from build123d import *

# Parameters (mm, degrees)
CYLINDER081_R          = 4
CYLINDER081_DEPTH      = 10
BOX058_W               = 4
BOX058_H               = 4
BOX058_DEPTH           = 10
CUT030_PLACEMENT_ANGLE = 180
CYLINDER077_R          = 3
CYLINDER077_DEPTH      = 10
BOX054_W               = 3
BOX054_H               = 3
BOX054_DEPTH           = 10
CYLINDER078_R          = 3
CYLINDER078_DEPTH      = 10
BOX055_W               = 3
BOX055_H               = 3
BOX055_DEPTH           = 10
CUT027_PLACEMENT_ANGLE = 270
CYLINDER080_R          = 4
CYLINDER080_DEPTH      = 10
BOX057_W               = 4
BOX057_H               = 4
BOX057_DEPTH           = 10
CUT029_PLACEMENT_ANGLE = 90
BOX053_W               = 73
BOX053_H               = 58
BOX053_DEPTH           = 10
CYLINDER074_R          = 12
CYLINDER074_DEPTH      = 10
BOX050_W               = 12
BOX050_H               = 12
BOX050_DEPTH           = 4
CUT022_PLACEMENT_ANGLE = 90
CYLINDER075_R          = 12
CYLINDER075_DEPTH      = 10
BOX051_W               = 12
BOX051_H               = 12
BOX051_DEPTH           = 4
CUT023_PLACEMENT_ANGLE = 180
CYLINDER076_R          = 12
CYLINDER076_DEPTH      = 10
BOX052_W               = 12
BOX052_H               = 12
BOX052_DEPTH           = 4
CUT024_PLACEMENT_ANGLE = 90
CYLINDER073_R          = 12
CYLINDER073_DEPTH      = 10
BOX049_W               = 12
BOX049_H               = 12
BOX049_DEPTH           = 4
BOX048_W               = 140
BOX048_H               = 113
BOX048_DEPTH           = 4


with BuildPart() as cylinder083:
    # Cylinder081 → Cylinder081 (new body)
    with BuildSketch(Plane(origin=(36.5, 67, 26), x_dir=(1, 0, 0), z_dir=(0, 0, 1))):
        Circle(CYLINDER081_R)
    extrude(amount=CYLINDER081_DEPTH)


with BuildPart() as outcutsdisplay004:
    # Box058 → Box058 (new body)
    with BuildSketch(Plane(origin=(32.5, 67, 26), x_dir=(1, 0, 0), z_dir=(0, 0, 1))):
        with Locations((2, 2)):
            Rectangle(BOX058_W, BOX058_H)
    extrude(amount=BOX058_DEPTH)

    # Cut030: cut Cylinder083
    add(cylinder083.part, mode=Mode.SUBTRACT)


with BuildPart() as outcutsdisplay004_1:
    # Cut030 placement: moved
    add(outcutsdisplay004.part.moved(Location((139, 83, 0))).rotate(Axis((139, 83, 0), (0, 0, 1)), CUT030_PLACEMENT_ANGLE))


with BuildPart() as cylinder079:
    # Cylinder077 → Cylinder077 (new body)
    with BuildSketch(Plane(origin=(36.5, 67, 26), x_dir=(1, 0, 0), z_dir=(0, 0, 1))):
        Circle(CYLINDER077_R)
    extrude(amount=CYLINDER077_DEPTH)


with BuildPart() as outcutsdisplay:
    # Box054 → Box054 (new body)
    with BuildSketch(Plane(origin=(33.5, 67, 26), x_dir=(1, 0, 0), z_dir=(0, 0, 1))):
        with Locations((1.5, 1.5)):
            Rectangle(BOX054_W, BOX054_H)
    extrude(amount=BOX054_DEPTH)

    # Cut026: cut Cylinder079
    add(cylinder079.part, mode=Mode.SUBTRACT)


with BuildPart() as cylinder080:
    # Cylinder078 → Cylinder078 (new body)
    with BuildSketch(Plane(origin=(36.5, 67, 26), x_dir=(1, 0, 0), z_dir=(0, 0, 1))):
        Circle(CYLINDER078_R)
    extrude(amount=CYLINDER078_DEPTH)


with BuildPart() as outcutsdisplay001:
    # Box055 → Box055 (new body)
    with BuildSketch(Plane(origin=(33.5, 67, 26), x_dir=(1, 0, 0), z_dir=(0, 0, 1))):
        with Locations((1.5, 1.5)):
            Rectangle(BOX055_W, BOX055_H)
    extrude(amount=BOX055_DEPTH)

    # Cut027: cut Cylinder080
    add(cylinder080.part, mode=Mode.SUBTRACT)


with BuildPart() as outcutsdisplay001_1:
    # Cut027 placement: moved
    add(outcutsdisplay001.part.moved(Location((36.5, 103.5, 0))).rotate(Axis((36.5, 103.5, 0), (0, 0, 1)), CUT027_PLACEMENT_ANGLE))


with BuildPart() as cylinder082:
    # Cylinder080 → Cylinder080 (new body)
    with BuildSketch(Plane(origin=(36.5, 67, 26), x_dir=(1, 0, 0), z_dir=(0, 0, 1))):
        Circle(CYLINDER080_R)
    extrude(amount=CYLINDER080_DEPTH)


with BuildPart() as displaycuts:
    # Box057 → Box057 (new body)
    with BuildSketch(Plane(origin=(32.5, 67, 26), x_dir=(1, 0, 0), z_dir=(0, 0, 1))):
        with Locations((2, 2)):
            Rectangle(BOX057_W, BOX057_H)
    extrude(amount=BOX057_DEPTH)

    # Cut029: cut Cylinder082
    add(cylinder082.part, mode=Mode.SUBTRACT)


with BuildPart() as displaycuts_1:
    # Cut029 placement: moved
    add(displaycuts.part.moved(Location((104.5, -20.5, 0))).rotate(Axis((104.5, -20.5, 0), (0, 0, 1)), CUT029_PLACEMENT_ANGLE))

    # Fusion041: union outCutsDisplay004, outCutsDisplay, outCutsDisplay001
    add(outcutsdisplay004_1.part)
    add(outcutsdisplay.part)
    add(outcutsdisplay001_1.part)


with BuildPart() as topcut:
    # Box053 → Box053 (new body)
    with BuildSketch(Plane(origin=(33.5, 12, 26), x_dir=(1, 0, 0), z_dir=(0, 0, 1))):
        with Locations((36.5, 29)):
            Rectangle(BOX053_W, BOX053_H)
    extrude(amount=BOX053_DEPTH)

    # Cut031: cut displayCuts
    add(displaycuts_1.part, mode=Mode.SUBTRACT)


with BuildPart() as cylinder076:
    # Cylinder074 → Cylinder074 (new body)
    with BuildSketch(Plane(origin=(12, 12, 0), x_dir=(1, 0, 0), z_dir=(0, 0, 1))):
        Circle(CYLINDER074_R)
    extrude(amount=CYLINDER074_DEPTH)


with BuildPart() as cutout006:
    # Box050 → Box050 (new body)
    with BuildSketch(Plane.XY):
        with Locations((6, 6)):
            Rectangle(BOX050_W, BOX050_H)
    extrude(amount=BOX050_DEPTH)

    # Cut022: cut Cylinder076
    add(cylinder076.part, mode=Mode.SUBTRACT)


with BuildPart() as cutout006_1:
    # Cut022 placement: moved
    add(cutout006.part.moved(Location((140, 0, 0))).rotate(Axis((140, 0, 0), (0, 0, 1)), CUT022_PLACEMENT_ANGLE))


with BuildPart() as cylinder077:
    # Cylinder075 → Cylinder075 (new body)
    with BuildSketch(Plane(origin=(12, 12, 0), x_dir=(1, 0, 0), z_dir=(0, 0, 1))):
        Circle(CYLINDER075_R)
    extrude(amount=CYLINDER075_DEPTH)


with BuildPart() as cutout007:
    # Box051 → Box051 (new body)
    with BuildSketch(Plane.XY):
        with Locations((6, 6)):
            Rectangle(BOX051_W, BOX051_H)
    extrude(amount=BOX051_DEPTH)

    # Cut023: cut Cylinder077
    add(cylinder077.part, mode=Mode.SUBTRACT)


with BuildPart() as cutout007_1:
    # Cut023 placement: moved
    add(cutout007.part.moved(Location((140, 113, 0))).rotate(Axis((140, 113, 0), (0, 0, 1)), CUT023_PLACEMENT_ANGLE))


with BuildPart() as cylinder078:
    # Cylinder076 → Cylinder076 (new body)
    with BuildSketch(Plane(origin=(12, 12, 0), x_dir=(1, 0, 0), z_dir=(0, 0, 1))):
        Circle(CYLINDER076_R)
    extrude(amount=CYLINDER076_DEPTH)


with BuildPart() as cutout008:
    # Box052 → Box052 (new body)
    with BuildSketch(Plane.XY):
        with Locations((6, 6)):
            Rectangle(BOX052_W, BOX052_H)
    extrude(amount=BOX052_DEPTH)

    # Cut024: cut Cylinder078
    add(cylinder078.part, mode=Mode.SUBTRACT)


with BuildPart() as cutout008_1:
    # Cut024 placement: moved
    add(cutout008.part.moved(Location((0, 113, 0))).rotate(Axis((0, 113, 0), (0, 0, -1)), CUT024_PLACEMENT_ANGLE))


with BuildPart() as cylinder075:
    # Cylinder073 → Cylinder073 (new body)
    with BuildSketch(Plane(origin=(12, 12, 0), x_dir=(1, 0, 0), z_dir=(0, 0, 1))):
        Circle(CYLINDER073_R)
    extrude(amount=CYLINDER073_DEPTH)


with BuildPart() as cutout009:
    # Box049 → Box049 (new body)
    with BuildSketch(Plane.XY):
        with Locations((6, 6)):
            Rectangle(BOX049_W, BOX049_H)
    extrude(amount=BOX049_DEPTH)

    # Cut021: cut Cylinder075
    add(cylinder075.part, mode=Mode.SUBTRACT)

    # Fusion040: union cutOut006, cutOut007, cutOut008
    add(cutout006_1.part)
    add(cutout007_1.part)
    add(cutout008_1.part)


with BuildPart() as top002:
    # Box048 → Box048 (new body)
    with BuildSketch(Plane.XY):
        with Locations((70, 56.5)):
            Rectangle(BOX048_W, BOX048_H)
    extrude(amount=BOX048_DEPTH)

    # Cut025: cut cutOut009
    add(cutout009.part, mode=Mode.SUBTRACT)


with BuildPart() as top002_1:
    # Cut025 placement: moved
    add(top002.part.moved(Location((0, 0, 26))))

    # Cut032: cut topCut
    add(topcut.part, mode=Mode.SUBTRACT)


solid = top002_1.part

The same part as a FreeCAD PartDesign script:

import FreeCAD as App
import Part
import Sketcher


def add_polygon(sketch, points):
    """Adds a closed chain of lines whose ends are joined by coincident constraints."""
    first, n = sketch.GeometryCount, len(points)
    for a, b in zip(points, points[1:] + points[:1]):
        sketch.addGeometry(Part.LineSegment(App.Vector(*a, 0), App.Vector(*b, 0)), False)
    for i in range(n):
        sketch.addConstraint(Sketcher.Constraint("Coincident", first + i, 2, first + (i + 1) % n, 1))

doc = App.newDocument("Part")
body = doc.addObject("PartDesign::Body", "Body")

# Sketch on XY plane
sketch1 = body.newObject("Sketcher::SketchObject", "Sketch")
sketch1.AttachmentSupport = (doc.getObject("XY_Plane"), [""])
sketch1.MapMode = "FlatFace"
sketch1.AttachmentOffset = App.Placement(App.Vector(0, 0, 26), App.Rotation())
sketch1.addGeometry(Part.Circle(App.Vector(36.5, 67, 0), App.Vector(0, 0, 1), 4), False)
sketch1.addConstraint(Sketcher.Constraint("Diameter", 0, 8.0))
sketch1.addConstraint(Sketcher.Constraint("DistanceY", -1, 1, 0, 3, 67.0))
sketch1.addConstraint(Sketcher.Constraint("DistanceX", -1, 1, 0, 3, 36.5))
pad1 = body.newObject("PartDesign::Pad", "Pad")
pad1.Profile = sketch1
pad1.Length = 10
body2 = doc.addObject("PartDesign::Body", "Body001")

# Sketch on XY plane
sketch2 = body2.newObject("Sketcher::SketchObject", "Sketch001")
sketch2.AttachmentSupport = (doc.getObject("XY_Plane001"), [""])
sketch2.MapMode = "FlatFace"
sketch2.AttachmentOffset = App.Placement(App.Vector(0, 0, 26), App.Rotation())
add_polygon(sketch2, [(32.5, 71), (32.5, 67), (36.5, 67), (36.5, 71)])  # lines 0-3
sketch2.addConstraint(Sketcher.Constraint("Vertical", 0))
sketch2.addConstraint(Sketcher.Constraint("Horizontal", 1))
sketch2.addConstraint(Sketcher.Constraint("Vertical", 2))
sketch2.addConstraint(Sketcher.Constraint("Horizontal", 3))
sketch2.addConstraint(Sketcher.Constraint("Equal", 3, 0))
sketch2.addConstraint(Sketcher.Constraint("DistanceX", 1, 1, 1, 2, 4.0))
sketch2.addConstraint(Sketcher.Constraint("DistanceY", -1, 1, 0, 2, 67.0))
sketch2.addConstraint(Sketcher.Constraint("DistanceX", -1, 1, 0, 2, 32.5))
pad2 = body2.newObject("PartDesign::Pad", "Pad001")
pad2.Profile = sketch2
pad2.Length = 10
doc.recompute()

boolean = body2.newObject("PartDesign::Boolean", "Boolean")
boolean.Type = "Cut"
boolean.addObjects([body])
body3 = doc.addObject("PartDesign::Body", "Body002")
doc.recompute()

body2.Placement = App.Placement(App.Vector(139, 83, 0), App.Rotation(App.Vector(0, 0, 1), 180))
boolean2 = body3.newObject("PartDesign::Boolean", "Boolean001")
boolean2.Type = "Fuse"
boolean2.addObjects([body2])
body4 = doc.addObject("PartDesign::Body", "Body003")

# Sketch on XY plane
sketch3 = body4.newObject("Sketcher::SketchObject", "Sketch002")
sketch3.AttachmentSupport = (doc.getObject("XY_Plane003"), [""])
sketch3.MapMode = "FlatFace"
sketch3.AttachmentOffset = App.Placement(App.Vector(0, 0, 26), App.Rotation())
sketch3.addGeometry(Part.Circle(App.Vector(36.5, 67, 0), App.Vector(0, 0, 1), 3), False)
sketch3.addConstraint(Sketcher.Constraint("Diameter", 0, 6.0))
sketch3.addConstraint(Sketcher.Constraint("DistanceY", -1, 1, 0, 3, 67.0))
sketch3.addConstraint(Sketcher.Constraint("DistanceX", -1, 1, 0, 3, 36.5))
pad3 = body4.newObject("PartDesign::Pad", "Pad002")
pad3.Profile = sketch3
pad3.Length = 10
body5 = doc.addObject("PartDesign::Body", "Body004")

# Sketch on XY plane
sketch4 = body5.newObject("Sketcher::SketchObject", "Sketch003")
sketch4.AttachmentSupport = (doc.getObject("XY_Plane004"), [""])
sketch4.MapMode = "FlatFace"
sketch4.AttachmentOffset = App.Placement(App.Vector(0, 0, 26), App.Rotation())
add_polygon(sketch4, [(33.5, 70), (33.5, 67), (36.5, 67), (36.5, 70)])  # lines 0-3
sketch4.addConstraint(Sketcher.Constraint("Vertical", 0))
sketch4.addConstraint(Sketcher.Constraint("Horizontal", 1))
sketch4.addConstraint(Sketcher.Constraint("Vertical", 2))
sketch4.addConstraint(Sketcher.Constraint("Horizontal", 3))
sketch4.addConstraint(Sketcher.Constraint("Equal", 3, 0))
sketch4.addConstraint(Sketcher.Constraint("DistanceX", 1, 1, 1, 2, 3.0))
sketch4.addConstraint(Sketcher.Constraint("DistanceY", -1, 1, 0, 2, 67.0))
sketch4.addConstraint(Sketcher.Constraint("DistanceX", -1, 1, 0, 2, 33.5))
pad4 = body5.newObject("PartDesign::Pad", "Pad003")
pad4.Profile = sketch4
pad4.Length = 10
doc.recompute()

boolean3 = body5.newObject("PartDesign::Boolean", "Boolean002")
boolean3.Type = "Cut"
boolean3.addObjects([body4])
body6 = doc.addObject("PartDesign::Body", "Body005")

# Sketch on XY plane
sketch5 = body6.newObject("Sketcher::SketchObject", "Sketch004")
sketch5.AttachmentSupport = (doc.getObject("XY_Plane005"), [""])
sketch5.MapMode = "FlatFace"
sketch5.AttachmentOffset = App.Placement(App.Vector(0, 0, 26), App.Rotation())
sketch5.addGeometry(Part.Circle(App.Vector(36.5, 67, 0), App.Vector(0, 0, 1), 3), False)
sketch5.addConstraint(Sketcher.Constraint("Diameter", 0, 6.0))
sketch5.addConstraint(Sketcher.Constraint("DistanceY", -1, 1, 0, 3, 67.0))
sketch5.addConstraint(Sketcher.Constraint("DistanceX", -1, 1, 0, 3, 36.5))
pad5 = body6.newObject("PartDesign::Pad", "Pad004")
pad5.Profile = sketch5
pad5.Length = 10
body7 = doc.addObject("PartDesign::Body", "Body006")

# Sketch on XY plane
sketch6 = body7.newObject("Sketcher::SketchObject", "Sketch005")
sketch6.AttachmentSupport = (doc.getObject("XY_Plane006"), [""])
sketch6.MapMode = "FlatFace"
sketch6.AttachmentOffset = App.Placement(App.Vector(0, 0, 26), App.Rotation())
add_polygon(sketch6, [(33.5, 70), (33.5, 67), (36.5, 67), (36.5, 70)])  # lines 0-3
sketch6.addConstraint(Sketcher.Constraint("Vertical", 0))
sketch6.addConstraint(Sketcher.Constraint("Horizontal", 1))
sketch6.addConstraint(Sketcher.Constraint("Vertical", 2))
sketch6.addConstraint(Sketcher.Constraint("Horizontal", 3))
sketch6.addConstraint(Sketcher.Constraint("Equal", 3, 0))
sketch6.addConstraint(Sketcher.Constraint("DistanceX", 1, 1, 1, 2, 3.0))
sketch6.addConstraint(Sketcher.Constraint("DistanceY", -1, 1, 0, 2, 67.0))
sketch6.addConstraint(Sketcher.Constraint("DistanceX", -1, 1, 0, 2, 33.5))
pad6 = body7.newObject("PartDesign::Pad", "Pad005")
pad6.Profile = sketch6
pad6.Length = 10
doc.recompute()

boolean4 = body7.newObject("PartDesign::Boolean", "Boolean003")
boolean4.Type = "Cut"
boolean4.addObjects([body6])
body8 = doc.addObject("PartDesign::Body", "Body007")
doc.recompute()

body7.Placement = App.Placement(App.Vector(36.5, 103.5, 0), App.Rotation(App.Vector(0, 0, 1), 270))
boolean5 = body8.newObject("PartDesign::Boolean", "Boolean004")
boolean5.Type = "Fuse"
boolean5.addObjects([body7])
body9 = doc.addObject("PartDesign::Body", "Body008")

# Sketch on XY plane
sketch7 = body9.newObject("Sketcher::SketchObject", "Sketch006")
sketch7.AttachmentSupport = (doc.getObject("XY_Plane008"), [""])
sketch7.MapMode = "FlatFace"
sketch7.AttachmentOffset = App.Placement(App.Vector(0, 0, 26), App.Rotation())
sketch7.addGeometry(Part.Circle(App.Vector(36.5, 67, 0), App.Vector(0, 0, 1), 4), False)
sketch7.addConstraint(Sketcher.Constraint("Diameter", 0, 8.0))
sketch7.addConstraint(Sketcher.Constraint("DistanceY", -1, 1, 0, 3, 67.0))
sketch7.addConstraint(Sketcher.Constraint("DistanceX", -1, 1, 0, 3, 36.5))
pad7 = body9.newObject("PartDesign::Pad", "Pad006")
pad7.Profile = sketch7
pad7.Length = 10
body10 = doc.addObject("PartDesign::Body", "Body009")

# Sketch on XY plane
sketch8 = body10.newObject("Sketcher::SketchObject", "Sketch007")
sketch8.AttachmentSupport = (doc.getObject("XY_Plane009"), [""])
sketch8.MapMode = "FlatFace"
sketch8.AttachmentOffset = App.Placement(App.Vector(0, 0, 26), App.Rotation())
add_polygon(sketch8, [(32.5, 71), (32.5, 67), (36.5, 67), (36.5, 71)])  # lines 0-3
sketch8.addConstraint(Sketcher.Constraint("Vertical", 0))
sketch8.addConstraint(Sketcher.Constraint("Horizontal", 1))
sketch8.addConstraint(Sketcher.Constraint("Vertical", 2))
sketch8.addConstraint(Sketcher.Constraint("Horizontal", 3))
sketch8.addConstraint(Sketcher.Constraint("Equal", 3, 0))
sketch8.addConstraint(Sketcher.Constraint("DistanceX", 1, 1, 1, 2, 4.0))
sketch8.addConstraint(Sketcher.Constraint("DistanceY", -1, 1, 0, 2, 67.0))
sketch8.addConstraint(Sketcher.Constraint("DistanceX", -1, 1, 0, 2, 32.5))
pad8 = body10.newObject("PartDesign::Pad", "Pad007")
pad8.Profile = sketch8
pad8.Length = 10
doc.recompute()

boolean6 = body10.newObject("PartDesign::Boolean", "Boolean005")
boolean6.Type = "Cut"
boolean6.addObjects([body9])
body11 = doc.addObject("PartDesign::Body", "Body010")
body11.AllowCompound = True
doc.recompute()

body10.Placement = App.Placement(App.Vector(104.5, -20.5, 0), App.Rotation(App.Vector(0, 0, 1), 90))
boolean7 = body11.newObject("PartDesign::Boolean", "Boolean006")
boolean7.Type = "Fuse"
boolean7.addObjects([body10])
doc.recompute()

boolean8 = body11.newObject("PartDesign::Boolean", "Boolean007")
boolean8.Type = "Fuse"
boolean8.addObjects([body3])
doc.recompute()

boolean9 = body11.newObject("PartDesign::Boolean", "Boolean008")
boolean9.Type = "Fuse"
boolean9.addObjects([body5])
doc.recompute()

boolean10 = body11.newObject("PartDesign::Boolean", "Boolean009")
boolean10.Type = "Fuse"
boolean10.addObjects([body8])
body12 = doc.addObject("PartDesign::Body", "Body011")

# Sketch on XY plane
sketch9 = body12.newObject("Sketcher::SketchObject", "Sketch008")
sketch9.AttachmentSupport = (doc.getObject("XY_Plane011"), [""])
sketch9.MapMode = "FlatFace"
sketch9.AttachmentOffset = App.Placement(App.Vector(0, 0, 26), App.Rotation())
add_polygon(sketch9, [(33.5, 70), (33.5, 12), (106.5, 12), (106.5, 70)])  # lines 0-3
sketch9.addConstraint(Sketcher.Constraint("Vertical", 0))
sketch9.addConstraint(Sketcher.Constraint("Horizontal", 1))
sketch9.addConstraint(Sketcher.Constraint("Vertical", 2))
sketch9.addConstraint(Sketcher.Constraint("Horizontal", 3))
sketch9.addConstraint(Sketcher.Constraint("DistanceX", 1, 1, 1, 2, 73.0))
sketch9.addConstraint(Sketcher.Constraint("DistanceY", 0, 2, 0, 1, 58.0))
sketch9.addConstraint(Sketcher.Constraint("DistanceY", -1, 1, 0, 2, 12.0))
sketch9.addConstraint(Sketcher.Constraint("DistanceX", -1, 1, 0, 2, 33.5))
pad9 = body12.newObject("PartDesign::Pad", "Pad008")
pad9.Profile = sketch9
pad9.Length = 10
doc.recompute()

boolean11 = body12.newObject("PartDesign::Boolean", "Boolean010")
boolean11.Type = "Cut"
boolean11.addObjects([body11])
body13 = doc.addObject("PartDesign::Body", "Body012")

# Sketch on XY plane
sketch10 = body13.newObject("Sketcher::SketchObject", "Sketch009")
sketch10.AttachmentSupport = (doc.getObject("XY_Plane012"), [""])
sketch10.MapMode = "FlatFace"
sketch10.addGeometry(Part.Circle(App.Vector(12, 12, 0), App.Vector(0, 0, 1), 12), False)
sketch10.addConstraint(Sketcher.Constraint("Diameter", 0, 24.0))
sketch10.addConstraint(Sketcher.Constraint("DistanceX", -1, 1, 0, 3, 12.0))
sketch10.addConstraint(Sketcher.Constraint("DistanceY", -1, 1, 0, 3, 12.0))
pad10 = body13.newObject("PartDesign::Pad", "Pad009")
pad10.Profile = sketch10
pad10.Length = 10
body14 = doc.addObject("PartDesign::Body", "Body013")

# Sketch on XY plane
sketch11 = body14.newObject("Sketcher::SketchObject", "Sketch010")
sketch11.AttachmentSupport = (doc.getObject("XY_Plane013"), [""])
sketch11.MapMode = "FlatFace"
add_polygon(sketch11, [(0, 12), (0, 0), (12, 0), (12, 12)])  # lines 0-3
sketch11.addConstraint(Sketcher.Constraint("Vertical", 0))
sketch11.addConstraint(Sketcher.Constraint("Horizontal", 1))
sketch11.addConstraint(Sketcher.Constraint("Vertical", 2))
sketch11.addConstraint(Sketcher.Constraint("Horizontal", 3))
sketch11.addConstraint(Sketcher.Constraint("Coincident", 0, 2, -1, 1))
sketch11.addConstraint(Sketcher.Constraint("Equal", 3, 0))
sketch11.addConstraint(Sketcher.Constraint("DistanceX", 1, 1, 1, 2, 12.0))
pad11 = body14.newObject("PartDesign::Pad", "Pad010")
pad11.Profile = sketch11
pad11.Length = 4
doc.recompute()

boolean12 = body14.newObject("PartDesign::Boolean", "Boolean011")
boolean12.Type = "Cut"
boolean12.addObjects([body13])
body15 = doc.addObject("PartDesign::Body", "Body014")
doc.recompute()

body14.Placement = App.Placement(App.Vector(140, 0, 0), App.Rotation(App.Vector(0, 0, 1), 90))
boolean13 = body15.newObject("PartDesign::Boolean", "Boolean012")
boolean13.Type = "Fuse"
boolean13.addObjects([body14])
body16 = doc.addObject("PartDesign::Body", "Body015")

# Sketch on XY plane
sketch12 = body16.newObject("Sketcher::SketchObject", "Sketch011")
sketch12.AttachmentSupport = (doc.getObject("XY_Plane015"), [""])
sketch12.MapMode = "FlatFace"
sketch12.addGeometry(Part.Circle(App.Vector(12, 12, 0), App.Vector(0, 0, 1), 12), False)
sketch12.addConstraint(Sketcher.Constraint("Diameter", 0, 24.0))
sketch12.addConstraint(Sketcher.Constraint("DistanceX", -1, 1, 0, 3, 12.0))
sketch12.addConstraint(Sketcher.Constraint("DistanceY", -1, 1, 0, 3, 12.0))
pad12 = body16.newObject("PartDesign::Pad", "Pad011")
pad12.Profile = sketch12
pad12.Length = 10
body17 = doc.addObject("PartDesign::Body", "Body016")

# Sketch on XY plane
sketch13 = body17.newObject("Sketcher::SketchObject", "Sketch012")
sketch13.AttachmentSupport = (doc.getObject("XY_Plane016"), [""])
sketch13.MapMode = "FlatFace"
add_polygon(sketch13, [(0, 12), (0, 0), (12, 0), (12, 12)])  # lines 0-3
sketch13.addConstraint(Sketcher.Constraint("Vertical", 0))
sketch13.addConstraint(Sketcher.Constraint("Horizontal", 1))
sketch13.addConstraint(Sketcher.Constraint("Vertical", 2))
sketch13.addConstraint(Sketcher.Constraint("Horizontal", 3))
sketch13.addConstraint(Sketcher.Constraint("Coincident", 0, 2, -1, 1))
sketch13.addConstraint(Sketcher.Constraint("Equal", 3, 0))
sketch13.addConstraint(Sketcher.Constraint("DistanceX", 1, 1, 1, 2, 12.0))
pad13 = body17.newObject("PartDesign::Pad", "Pad012")
pad13.Profile = sketch13
pad13.Length = 4
doc.recompute()

boolean14 = body17.newObject("PartDesign::Boolean", "Boolean013")
boolean14.Type = "Cut"
boolean14.addObjects([body16])
body18 = doc.addObject("PartDesign::Body", "Body017")
doc.recompute()

body17.Placement = App.Placement(App.Vector(140, 113, 0), App.Rotation(App.Vector(0, 0, 1), 180))
boolean15 = body18.newObject("PartDesign::Boolean", "Boolean014")
boolean15.Type = "Fuse"
boolean15.addObjects([body17])
body19 = doc.addObject("PartDesign::Body", "Body018")

# Sketch on XY plane
sketch14 = body19.newObject("Sketcher::SketchObject", "Sketch013")
sketch14.AttachmentSupport = (doc.getObject("XY_Plane018"), [""])
sketch14.MapMode = "FlatFace"
sketch14.addGeometry(Part.Circle(App.Vector(12, 12, 0), App.Vector(0, 0, 1), 12), False)
sketch14.addConstraint(Sketcher.Constraint("Diameter", 0, 24.0))
sketch14.addConstraint(Sketcher.Constraint("DistanceX", -1, 1, 0, 3, 12.0))
sketch14.addConstraint(Sketcher.Constraint("DistanceY", -1, 1, 0, 3, 12.0))
pad14 = body19.newObject("PartDesign::Pad", "Pad013")
pad14.Profile = sketch14
pad14.Length = 10
body20 = doc.addObject("PartDesign::Body", "Body019")

# Sketch on XY plane
sketch15 = body20.newObject("Sketcher::SketchObject", "Sketch014")
sketch15.AttachmentSupport = (doc.getObject("XY_Plane019"), [""])
sketch15.MapMode = "FlatFace"
add_polygon(sketch15, [(0, 12), (0, 0), (12, 0), (12, 12)])  # lines 0-3
sketch15.addConstraint(Sketcher.Constraint("Vertical", 0))
sketch15.addConstraint(Sketcher.Constraint("Horizontal", 1))
sketch15.addConstraint(Sketcher.Constraint("Vertical", 2))
sketch15.addConstraint(Sketcher.Constraint("Horizontal", 3))
sketch15.addConstraint(Sketcher.Constraint("Coincident", 0, 2, -1, 1))
sketch15.addConstraint(Sketcher.Constraint("Equal", 3, 0))
sketch15.addConstraint(Sketcher.Constraint("DistanceX", 1, 1, 1, 2, 12.0))
pad15 = body20.newObject("PartDesign::Pad", "Pad014")
pad15.Profile = sketch15
pad15.Length = 4
doc.recompute()

boolean16 = body20.newObject("PartDesign::Boolean", "Boolean015")
boolean16.Type = "Cut"
boolean16.addObjects([body19])
body21 = doc.addObject("PartDesign::Body", "Body020")
doc.recompute()

body20.Placement = App.Placement(App.Vector(0, 113, 0), App.Rotation(App.Vector(0, 0, -1), 90))
boolean17 = body21.newObject("PartDesign::Boolean", "Boolean016")
boolean17.Type = "Fuse"
boolean17.addObjects([body20])
body22 = doc.addObject("PartDesign::Body", "Body021")

# Sketch on XY plane
sketch16 = body22.newObject("Sketcher::SketchObject", "Sketch015")
sketch16.AttachmentSupport = (doc.getObject("XY_Plane021"), [""])
sketch16.MapMode = "FlatFace"
sketch16.addGeometry(Part.Circle(App.Vector(12, 12, 0), App.Vector(0, 0, 1), 12), False)
sketch16.addConstraint(Sketcher.Constraint("Diameter", 0, 24.0))
sketch16.addConstraint(Sketcher.Constraint("DistanceX", -1, 1, 0, 3, 12.0))
sketch16.addConstraint(Sketcher.Constraint("DistanceY", -1, 1, 0, 3, 12.0))
pad16 = body22.newObject("PartDesign::Pad", "Pad015")
pad16.Profile = sketch16
pad16.Length = 10
body23 = doc.addObject("PartDesign::Body", "Body022")
body23.AllowCompound = True

# Sketch on XY plane
sketch17 = body23.newObject("Sketcher::SketchObject", "Sketch016")
sketch17.AttachmentSupport = (doc.getObject("XY_Plane022"), [""])
sketch17.MapMode = "FlatFace"
add_polygon(sketch17, [(0, 12), (0, 0), (12, 0), (12, 12)])  # lines 0-3
sketch17.addConstraint(Sketcher.Constraint("Vertical", 0))
sketch17.addConstraint(Sketcher.Constraint("Horizontal", 1))
sketch17.addConstraint(Sketcher.Constraint("Vertical", 2))
sketch17.addConstraint(Sketcher.Constraint("Horizontal", 3))
sketch17.addConstraint(Sketcher.Constraint("Coincident", 0, 2, -1, 1))
sketch17.addConstraint(Sketcher.Constraint("Equal", 3, 0))
sketch17.addConstraint(Sketcher.Constraint("DistanceX", 1, 1, 1, 2, 12.0))
pad17 = body23.newObject("PartDesign::Pad", "Pad016")
pad17.Profile = sketch17
pad17.Length = 4
doc.recompute()

boolean18 = body23.newObject("PartDesign::Boolean", "Boolean017")
boolean18.Type = "Cut"
boolean18.addObjects([body22])
doc.recompute()

boolean19 = body23.newObject("PartDesign::Boolean", "Boolean018")
boolean19.Type = "Fuse"
boolean19.addObjects([body15])
doc.recompute()

boolean20 = body23.newObject("PartDesign::Boolean", "Boolean019")
boolean20.Type = "Fuse"
boolean20.addObjects([body18])
doc.recompute()

boolean21 = body23.newObject("PartDesign::Boolean", "Boolean020")
boolean21.Type = "Fuse"
boolean21.addObjects([body21])
body24 = doc.addObject("PartDesign::Body", "Body023")

# Sketch on XY plane
sketch18 = body24.newObject("Sketcher::SketchObject", "Sketch017")
sketch18.AttachmentSupport = (doc.getObject("XY_Plane023"), [""])
sketch18.MapMode = "FlatFace"
add_polygon(sketch18, [(0, 113), (0, 0), (140, 0), (140, 113)])  # lines 0-3
sketch18.addConstraint(Sketcher.Constraint("Vertical", 0))
sketch18.addConstraint(Sketcher.Constraint("Horizontal", 1))
sketch18.addConstraint(Sketcher.Constraint("Vertical", 2))
sketch18.addConstraint(Sketcher.Constraint("Horizontal", 3))
sketch18.addConstraint(Sketcher.Constraint("Coincident", 0, 2, -1, 1))
sketch18.addConstraint(Sketcher.Constraint("DistanceX", 1, 1, 1, 2, 140.0))
sketch18.addConstraint(Sketcher.Constraint("DistanceY", 0, 2, 0, 1, 113.0))
pad18 = body24.newObject("PartDesign::Pad", "Pad017")
pad18.Profile = sketch18
pad18.Length = 4
doc.recompute()

boolean22 = body24.newObject("PartDesign::Boolean", "Boolean021")
boolean22.Type = "Cut"
boolean22.addObjects([body23])
body25 = doc.addObject("PartDesign::Body", "Body024")
doc.recompute()

body24.Placement = App.Placement(App.Vector(0, 0, 26), App.Rotation(App.Vector(0, 0, 1), 0))
boolean23 = body25.newObject("PartDesign::Boolean", "Boolean022")
boolean23.Type = "Fuse"
boolean23.addObjects([body24])
doc.recompute()

boolean24 = body25.newObject("PartDesign::Boolean", "Boolean023")
boolean24.Type = "Cut"
boolean24.addObjects([body12])

doc.recompute()
